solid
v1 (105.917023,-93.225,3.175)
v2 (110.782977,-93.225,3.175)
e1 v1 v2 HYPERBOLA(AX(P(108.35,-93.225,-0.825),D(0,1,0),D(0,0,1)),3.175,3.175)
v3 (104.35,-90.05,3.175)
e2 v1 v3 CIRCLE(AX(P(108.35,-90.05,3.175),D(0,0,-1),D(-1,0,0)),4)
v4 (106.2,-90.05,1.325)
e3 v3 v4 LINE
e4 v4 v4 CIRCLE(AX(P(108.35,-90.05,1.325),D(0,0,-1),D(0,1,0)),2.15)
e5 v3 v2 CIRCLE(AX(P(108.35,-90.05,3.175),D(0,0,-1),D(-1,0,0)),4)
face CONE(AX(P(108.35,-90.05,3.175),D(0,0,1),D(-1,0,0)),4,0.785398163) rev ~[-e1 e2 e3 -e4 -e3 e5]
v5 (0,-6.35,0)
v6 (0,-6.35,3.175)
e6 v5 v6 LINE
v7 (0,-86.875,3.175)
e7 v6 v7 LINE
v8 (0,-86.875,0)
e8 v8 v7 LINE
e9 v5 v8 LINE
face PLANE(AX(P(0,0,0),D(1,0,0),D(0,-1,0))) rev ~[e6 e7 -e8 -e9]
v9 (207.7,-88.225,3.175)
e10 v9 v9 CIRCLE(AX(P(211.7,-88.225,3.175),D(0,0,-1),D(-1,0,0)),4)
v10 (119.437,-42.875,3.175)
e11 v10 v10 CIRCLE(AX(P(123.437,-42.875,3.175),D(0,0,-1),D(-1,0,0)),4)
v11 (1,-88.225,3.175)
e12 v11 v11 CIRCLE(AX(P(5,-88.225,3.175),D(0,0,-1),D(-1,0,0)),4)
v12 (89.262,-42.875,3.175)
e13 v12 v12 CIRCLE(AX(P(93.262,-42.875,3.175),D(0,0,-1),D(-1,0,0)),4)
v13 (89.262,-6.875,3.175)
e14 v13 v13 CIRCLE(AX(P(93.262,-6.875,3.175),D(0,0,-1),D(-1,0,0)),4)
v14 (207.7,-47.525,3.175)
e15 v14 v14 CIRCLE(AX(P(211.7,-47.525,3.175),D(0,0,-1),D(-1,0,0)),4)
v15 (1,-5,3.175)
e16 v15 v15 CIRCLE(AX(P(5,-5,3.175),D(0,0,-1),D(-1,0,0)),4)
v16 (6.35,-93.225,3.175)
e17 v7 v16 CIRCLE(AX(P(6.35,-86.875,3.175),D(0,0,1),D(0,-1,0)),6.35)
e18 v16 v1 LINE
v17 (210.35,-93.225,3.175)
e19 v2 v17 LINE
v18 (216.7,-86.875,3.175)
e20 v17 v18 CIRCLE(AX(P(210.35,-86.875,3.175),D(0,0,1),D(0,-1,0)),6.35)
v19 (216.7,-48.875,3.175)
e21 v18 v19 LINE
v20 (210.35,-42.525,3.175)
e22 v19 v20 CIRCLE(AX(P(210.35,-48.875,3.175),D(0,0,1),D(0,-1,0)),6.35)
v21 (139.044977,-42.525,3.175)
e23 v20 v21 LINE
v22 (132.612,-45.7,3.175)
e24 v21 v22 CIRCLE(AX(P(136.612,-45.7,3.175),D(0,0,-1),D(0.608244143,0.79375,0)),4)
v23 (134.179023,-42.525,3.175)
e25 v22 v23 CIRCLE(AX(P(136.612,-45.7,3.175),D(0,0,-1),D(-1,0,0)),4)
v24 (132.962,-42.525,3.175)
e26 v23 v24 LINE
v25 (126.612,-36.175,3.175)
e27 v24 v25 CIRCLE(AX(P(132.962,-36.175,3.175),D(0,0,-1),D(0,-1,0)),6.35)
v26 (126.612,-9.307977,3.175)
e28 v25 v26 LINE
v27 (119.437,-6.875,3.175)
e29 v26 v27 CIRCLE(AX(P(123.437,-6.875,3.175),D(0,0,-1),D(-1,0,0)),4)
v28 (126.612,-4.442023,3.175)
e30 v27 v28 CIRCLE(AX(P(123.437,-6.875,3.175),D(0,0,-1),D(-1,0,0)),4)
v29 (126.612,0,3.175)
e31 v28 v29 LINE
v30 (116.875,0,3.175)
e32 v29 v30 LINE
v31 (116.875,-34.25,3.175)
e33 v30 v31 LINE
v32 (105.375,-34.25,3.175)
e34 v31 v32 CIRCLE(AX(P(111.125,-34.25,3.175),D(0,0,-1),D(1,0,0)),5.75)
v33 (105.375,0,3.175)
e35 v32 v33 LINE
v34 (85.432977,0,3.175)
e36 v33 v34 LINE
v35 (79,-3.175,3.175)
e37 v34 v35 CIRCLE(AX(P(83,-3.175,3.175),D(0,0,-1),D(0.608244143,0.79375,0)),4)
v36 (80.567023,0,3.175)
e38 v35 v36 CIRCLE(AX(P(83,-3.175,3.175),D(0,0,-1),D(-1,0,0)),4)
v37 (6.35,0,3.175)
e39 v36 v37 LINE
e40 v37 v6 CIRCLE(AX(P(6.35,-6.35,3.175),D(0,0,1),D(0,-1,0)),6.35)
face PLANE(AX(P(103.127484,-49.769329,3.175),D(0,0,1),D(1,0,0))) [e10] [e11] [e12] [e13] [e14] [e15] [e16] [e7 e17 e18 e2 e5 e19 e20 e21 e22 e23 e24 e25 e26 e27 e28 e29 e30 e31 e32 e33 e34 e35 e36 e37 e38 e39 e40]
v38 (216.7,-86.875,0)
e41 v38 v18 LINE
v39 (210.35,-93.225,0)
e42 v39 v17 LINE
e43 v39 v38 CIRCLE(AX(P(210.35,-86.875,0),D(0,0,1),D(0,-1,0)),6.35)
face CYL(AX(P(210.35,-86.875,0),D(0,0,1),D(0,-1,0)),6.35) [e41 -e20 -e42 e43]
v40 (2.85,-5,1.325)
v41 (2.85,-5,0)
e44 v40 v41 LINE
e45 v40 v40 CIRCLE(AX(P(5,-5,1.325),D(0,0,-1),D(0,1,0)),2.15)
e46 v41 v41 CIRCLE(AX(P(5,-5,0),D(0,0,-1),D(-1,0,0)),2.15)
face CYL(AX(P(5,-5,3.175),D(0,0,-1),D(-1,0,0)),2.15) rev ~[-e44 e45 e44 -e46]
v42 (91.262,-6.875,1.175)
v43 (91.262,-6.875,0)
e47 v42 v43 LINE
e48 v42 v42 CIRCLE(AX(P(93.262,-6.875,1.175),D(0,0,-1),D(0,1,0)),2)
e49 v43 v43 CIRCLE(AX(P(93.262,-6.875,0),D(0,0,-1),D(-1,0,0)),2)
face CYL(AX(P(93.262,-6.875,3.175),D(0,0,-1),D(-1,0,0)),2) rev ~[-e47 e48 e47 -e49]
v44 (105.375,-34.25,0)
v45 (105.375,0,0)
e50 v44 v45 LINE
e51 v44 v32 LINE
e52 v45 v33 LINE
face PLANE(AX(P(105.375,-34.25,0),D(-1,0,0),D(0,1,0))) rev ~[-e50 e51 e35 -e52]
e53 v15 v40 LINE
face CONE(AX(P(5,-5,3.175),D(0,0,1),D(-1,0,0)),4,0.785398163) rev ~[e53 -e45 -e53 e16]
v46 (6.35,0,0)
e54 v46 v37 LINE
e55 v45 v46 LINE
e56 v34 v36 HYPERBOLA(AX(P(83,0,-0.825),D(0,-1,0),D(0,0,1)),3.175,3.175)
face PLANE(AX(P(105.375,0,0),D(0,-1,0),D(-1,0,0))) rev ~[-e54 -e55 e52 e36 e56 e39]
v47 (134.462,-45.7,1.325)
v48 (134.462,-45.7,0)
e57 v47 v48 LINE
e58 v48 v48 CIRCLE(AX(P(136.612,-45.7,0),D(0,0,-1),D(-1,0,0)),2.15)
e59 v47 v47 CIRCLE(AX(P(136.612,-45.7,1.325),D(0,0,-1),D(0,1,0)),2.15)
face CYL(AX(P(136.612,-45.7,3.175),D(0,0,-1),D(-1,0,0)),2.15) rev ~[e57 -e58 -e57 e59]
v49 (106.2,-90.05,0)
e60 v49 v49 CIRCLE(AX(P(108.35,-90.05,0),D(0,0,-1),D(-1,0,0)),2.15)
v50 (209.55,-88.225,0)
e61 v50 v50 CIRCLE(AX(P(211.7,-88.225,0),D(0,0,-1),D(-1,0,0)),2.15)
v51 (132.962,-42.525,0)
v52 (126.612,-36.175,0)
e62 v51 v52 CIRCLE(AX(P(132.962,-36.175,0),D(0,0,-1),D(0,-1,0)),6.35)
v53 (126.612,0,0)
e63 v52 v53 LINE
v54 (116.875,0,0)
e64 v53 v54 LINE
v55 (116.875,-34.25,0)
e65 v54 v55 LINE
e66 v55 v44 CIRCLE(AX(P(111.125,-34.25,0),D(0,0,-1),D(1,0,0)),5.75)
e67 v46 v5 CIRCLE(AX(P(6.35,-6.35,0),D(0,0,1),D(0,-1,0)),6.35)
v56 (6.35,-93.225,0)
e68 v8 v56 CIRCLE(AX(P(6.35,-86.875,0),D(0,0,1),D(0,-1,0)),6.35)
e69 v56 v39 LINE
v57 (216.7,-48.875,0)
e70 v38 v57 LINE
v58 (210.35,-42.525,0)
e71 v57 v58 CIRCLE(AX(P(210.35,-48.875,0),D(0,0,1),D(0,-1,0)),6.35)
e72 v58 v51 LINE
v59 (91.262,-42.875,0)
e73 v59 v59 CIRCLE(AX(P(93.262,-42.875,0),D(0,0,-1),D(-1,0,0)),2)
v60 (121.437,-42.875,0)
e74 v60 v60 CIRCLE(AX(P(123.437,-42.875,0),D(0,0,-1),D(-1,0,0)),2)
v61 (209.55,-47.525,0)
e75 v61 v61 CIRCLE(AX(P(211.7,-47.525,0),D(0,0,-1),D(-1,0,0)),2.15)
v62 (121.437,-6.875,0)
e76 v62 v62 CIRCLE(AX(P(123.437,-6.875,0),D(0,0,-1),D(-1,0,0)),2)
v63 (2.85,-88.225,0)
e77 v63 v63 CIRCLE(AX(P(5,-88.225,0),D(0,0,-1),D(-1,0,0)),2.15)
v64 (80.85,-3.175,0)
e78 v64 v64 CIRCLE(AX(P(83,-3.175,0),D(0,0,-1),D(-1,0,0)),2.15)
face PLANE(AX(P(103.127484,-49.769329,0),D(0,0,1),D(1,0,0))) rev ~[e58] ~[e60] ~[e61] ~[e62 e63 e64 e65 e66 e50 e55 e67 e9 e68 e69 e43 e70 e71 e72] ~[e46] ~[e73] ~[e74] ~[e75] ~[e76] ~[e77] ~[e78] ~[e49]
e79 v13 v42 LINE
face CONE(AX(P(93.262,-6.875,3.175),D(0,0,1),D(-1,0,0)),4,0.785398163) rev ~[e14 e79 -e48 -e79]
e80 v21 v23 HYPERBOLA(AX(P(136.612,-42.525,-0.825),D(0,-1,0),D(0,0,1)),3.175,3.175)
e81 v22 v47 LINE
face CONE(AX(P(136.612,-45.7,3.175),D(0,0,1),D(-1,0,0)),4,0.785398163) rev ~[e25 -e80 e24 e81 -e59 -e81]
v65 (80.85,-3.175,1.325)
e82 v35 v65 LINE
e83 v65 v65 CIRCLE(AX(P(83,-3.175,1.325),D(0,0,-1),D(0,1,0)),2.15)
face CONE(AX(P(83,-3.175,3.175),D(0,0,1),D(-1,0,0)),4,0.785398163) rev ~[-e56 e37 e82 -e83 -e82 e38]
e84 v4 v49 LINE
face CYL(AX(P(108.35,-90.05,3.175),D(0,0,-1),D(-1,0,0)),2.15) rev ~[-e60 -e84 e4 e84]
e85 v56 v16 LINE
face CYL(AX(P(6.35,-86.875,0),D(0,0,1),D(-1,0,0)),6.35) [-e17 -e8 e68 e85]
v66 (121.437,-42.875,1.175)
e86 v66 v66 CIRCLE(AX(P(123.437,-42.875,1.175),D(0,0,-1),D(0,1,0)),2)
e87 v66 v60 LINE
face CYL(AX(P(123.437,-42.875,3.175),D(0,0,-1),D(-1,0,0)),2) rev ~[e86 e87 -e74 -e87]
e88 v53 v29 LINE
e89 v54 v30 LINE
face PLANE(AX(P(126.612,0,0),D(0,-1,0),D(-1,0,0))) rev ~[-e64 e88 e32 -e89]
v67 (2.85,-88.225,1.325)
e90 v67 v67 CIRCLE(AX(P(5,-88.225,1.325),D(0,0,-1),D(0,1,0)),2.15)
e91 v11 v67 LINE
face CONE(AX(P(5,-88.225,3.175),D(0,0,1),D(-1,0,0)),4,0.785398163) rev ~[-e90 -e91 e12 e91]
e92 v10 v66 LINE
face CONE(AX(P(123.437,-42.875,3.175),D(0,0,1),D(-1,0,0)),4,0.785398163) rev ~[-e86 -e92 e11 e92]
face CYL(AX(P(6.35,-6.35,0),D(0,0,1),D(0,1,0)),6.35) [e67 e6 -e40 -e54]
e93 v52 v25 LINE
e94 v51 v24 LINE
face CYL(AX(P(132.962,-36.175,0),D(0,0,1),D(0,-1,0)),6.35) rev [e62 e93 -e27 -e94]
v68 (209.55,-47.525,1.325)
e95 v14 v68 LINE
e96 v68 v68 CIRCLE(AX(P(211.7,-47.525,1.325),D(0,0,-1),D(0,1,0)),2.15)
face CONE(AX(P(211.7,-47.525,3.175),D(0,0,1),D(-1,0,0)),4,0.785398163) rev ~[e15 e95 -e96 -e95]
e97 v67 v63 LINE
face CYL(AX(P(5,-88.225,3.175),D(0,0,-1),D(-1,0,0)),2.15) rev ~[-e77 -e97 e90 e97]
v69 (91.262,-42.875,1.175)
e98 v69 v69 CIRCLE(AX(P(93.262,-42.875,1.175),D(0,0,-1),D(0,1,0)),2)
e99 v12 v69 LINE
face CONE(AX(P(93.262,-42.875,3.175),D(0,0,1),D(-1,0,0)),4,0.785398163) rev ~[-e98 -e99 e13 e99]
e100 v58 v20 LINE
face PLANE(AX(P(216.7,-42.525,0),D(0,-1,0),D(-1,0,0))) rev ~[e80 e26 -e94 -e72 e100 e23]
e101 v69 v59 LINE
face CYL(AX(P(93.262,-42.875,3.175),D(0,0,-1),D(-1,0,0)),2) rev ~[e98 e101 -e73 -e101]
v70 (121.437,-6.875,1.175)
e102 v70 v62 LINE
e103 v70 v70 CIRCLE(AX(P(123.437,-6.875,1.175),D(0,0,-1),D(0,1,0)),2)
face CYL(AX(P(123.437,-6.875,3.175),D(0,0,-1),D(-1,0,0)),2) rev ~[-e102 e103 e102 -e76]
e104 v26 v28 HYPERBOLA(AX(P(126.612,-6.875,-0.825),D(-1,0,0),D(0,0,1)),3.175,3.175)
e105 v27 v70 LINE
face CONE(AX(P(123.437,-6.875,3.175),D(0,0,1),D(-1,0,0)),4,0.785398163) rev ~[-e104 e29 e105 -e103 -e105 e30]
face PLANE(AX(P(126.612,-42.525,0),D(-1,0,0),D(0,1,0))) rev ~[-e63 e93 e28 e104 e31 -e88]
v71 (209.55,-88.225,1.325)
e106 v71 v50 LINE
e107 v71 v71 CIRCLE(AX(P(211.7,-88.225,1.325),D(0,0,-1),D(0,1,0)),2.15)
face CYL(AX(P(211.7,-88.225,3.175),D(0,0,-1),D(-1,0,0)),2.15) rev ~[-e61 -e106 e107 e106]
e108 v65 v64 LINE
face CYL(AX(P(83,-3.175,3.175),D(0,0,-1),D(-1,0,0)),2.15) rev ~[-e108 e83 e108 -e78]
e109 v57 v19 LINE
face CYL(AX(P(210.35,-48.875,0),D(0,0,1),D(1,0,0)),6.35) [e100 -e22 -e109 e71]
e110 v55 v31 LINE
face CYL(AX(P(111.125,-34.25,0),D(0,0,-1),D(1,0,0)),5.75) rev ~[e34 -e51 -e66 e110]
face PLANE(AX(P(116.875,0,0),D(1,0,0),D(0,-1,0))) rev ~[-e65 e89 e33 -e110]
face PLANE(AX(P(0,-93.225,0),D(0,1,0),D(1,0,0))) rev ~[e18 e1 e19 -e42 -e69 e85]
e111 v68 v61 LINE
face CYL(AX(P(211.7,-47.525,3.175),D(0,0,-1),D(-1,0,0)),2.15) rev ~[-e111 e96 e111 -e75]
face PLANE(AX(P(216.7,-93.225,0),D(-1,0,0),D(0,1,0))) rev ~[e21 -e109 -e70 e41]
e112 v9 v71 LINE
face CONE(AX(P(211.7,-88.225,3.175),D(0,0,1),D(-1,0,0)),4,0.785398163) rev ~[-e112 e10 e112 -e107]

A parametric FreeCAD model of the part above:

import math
import FreeCAD as App
import Part
import Sketcher

V = App.Vector


def edges_at(feature, points):
    """Names of the edges that pass closest to the given points."""
    edges = feature.Shape.Edges
    near = lambda p: min(range(len(edges)), key=lambda i: edges[i].distToShape(Part.Vertex(*p))[0])
    return sorted({f"Edge{near(p) + 1}" for p in points})

doc = App.newDocument("Part")
body = doc.addObject("PartDesign::Body", "Body")

sketch1 = body.newObject("Sketcher::SketchObject", "Sketch")
sketch1.AttachmentSupport = (doc.getObject("XY_Plane"), [""])
sketch1.MapMode = "FlatFace"
sketch1.addGeometry([
    Part.LineSegment(V(105.375, 0, 0), V(0, 0, 0)),
    Part.LineSegment(V(0, 0, 0), V(0, -93.225, 0)),
    Part.LineSegment(V(0, -93.225, 0), V(216.7, -93.225, 0)),
    Part.LineSegment(V(216.7, -93.225, 0), V(216.7, -42.525, 0)),
    Part.LineSegment(V(216.7, -42.525, 0), V(126.612, -42.525, 0)),
    Part.LineSegment(V(126.612, -42.525, 0), V(126.612, 0, 0)),
    Part.LineSegment(V(126.612, 0, 0), V(116.875, 0, 0)),
    Part.LineSegment(V(116.875, 0, 0), V(116.875, -34.25, 0)),
    Part.ArcOfCircle(Part.Circle(V(111.125, -34.25, 0), V(0, 0, 1), 5.75), math.radians(180), math.radians(360)),
    Part.LineSegment(V(105.375, -34.25, 0), V(105.375, 0, 0)),
], False)
sketch1.addConstraint([
    Sketcher.Constraint("Coincident", 0, 2, 1, 1),
    Sketcher.Constraint("Coincident", 1, 2, 2, 1),
    Sketcher.Constraint("Coincident", 2, 2, 3, 1),
    Sketcher.Constraint("Coincident", 3, 2, 4, 1),
    Sketcher.Constraint("Coincident", 4, 2, 5, 1),
    Sketcher.Constraint("Coincident", 5, 2, 6, 1),
    Sketcher.Constraint("Coincident", 6, 2, 7, 1),
    Sketcher.Constraint("Tangent", 7, 2, 8, 2),
    Sketcher.Constraint("Tangent", 8, 1, 9, 1),
    Sketcher.Constraint("Coincident", 9, 2, 0, 1),
    Sketcher.Constraint("Horizontal", 0),
    Sketcher.Constraint("Vertical", 1),
    Sketcher.Constraint("Horizontal", 2),
    Sketcher.Constraint("Vertical", 3),
    Sketcher.Constraint("Horizontal", 4),
    Sketcher.Constraint("Vertical", 5),
    Sketcher.Constraint("Horizontal", 6),
    Sketcher.Constraint("Vertical", 7),
    Sketcher.Constraint("Vertical", 9),
    Sketcher.Constraint("Coincident", 0, 2, -1, 1),
    Sketcher.Constraint("PointOnObject", 5, 2, -1),
    Sketcher.Constraint("Radius", 8, 5.75),
    Sketcher.Constraint("DistanceX", 2, 1, 2, 2, 216.7),
    Sketcher.Constraint("DistanceY", 3, 1, 3, 2, 50.7),
    Sketcher.Constraint("DistanceY", 7, 2, 7, 1, 34.25),
    Sketcher.Constraint("DistanceX", 0, 2, 0, 1, 105.375),
    Sketcher.Constraint("DistanceX", 4, 2, 4, 1, 90.088),
    Sketcher.Constraint("DistanceY", 1, 2, 1, 1, 93.225),
])
pad1 = body.newObject("PartDesign::Pad", "Pad")
pad1.Profile = sketch1
pad1.Length = 3.175
doc.recompute()

fillet = body.newObject("PartDesign::Fillet", "Fillet")
fillet.Base = (pad1, edges_at(pad1, [
    (0, 0, 1.587),
    (0, -93.225, 1.587),
    (126.612, -42.525, 1.587),
    (216.7, -42.525, 1.587),
    (216.7, -93.225, 1.587),
]))
fillet.Radius = 6.35

sketch2 = body.newObject("Sketcher::SketchObject", "Sketch001")
sketch2.AttachmentSupport = (doc.getObject("XY_Plane"), [""])
sketch2.MapMode = "FlatFace"
sketch2.AttachmentOffset = App.Placement(V(0, 0, 3.175), App.Rotation())
sketch2.addGeometry([
    Part.Circle(V(5, -5, 0), V(0, 0, 1), 2.15),
    Part.Circle(V(5, -88.225, 0), V(0, 0, 1), 2.15),
    Part.Circle(V(211.7, -88.225, 0), V(0, 0, 1), 2.15),
    Part.Circle(V(211.7, -47.525, 0), V(0, 0, 1), 2.15),
    Part.Circle(V(136.612, -45.7, 0), V(0, 0, 1), 2.15),
    Part.Circle(V(83, -3.175, 0), V(0, 0, 1), 2.15),
    Part.Circle(V(108.35, -90.05, 0), V(0, 0, 1), 2.15),
], False)
sketch2.addConstraint([
    Sketcher.Constraint("Equal", 0, 1),
    Sketcher.Constraint("Equal", 1, 2),
    Sketcher.Constraint("Equal", 2, 3),
    Sketcher.Constraint("Equal", 3, 4),
    Sketcher.Constraint("Equal", 4, 5),
    Sketcher.Constraint("Equal", 5, 6),
    Sketcher.Constraint("Horizontal", 1, 3, 2, 3),
    Sketcher.Constraint("Vertical", 0, 3, 1, 3),
    Sketcher.Constraint("Vertical", 2, 3, 3, 3),
    Sketcher.Constraint("Diameter", 0, 4.3),
    Sketcher.Constraint("DistanceX", -1, 1, 0, 3, 5.0),
    Sketcher.Constraint("DistanceY", 0, 3, -1, 1, 5.0),
    Sketcher.Constraint("DistanceX", -1, 1, 5, 3, 83.0),
    Sketcher.Constraint("DistanceX", -1, 1, 2, 3, 211.7),
    Sketcher.Constraint("DistanceY", 4, 3, -1, 1, 45.7),
    Sketcher.Constraint("DistanceY", 2, 3, 3, 3, 40.7),
    Sketcher.Constraint("DistanceX", -1, 1, 6, 3, 108.35),
    Sketcher.Constraint("DistanceY", 6, 3, -1, 1, 90.05),
    Sketcher.Constraint("DistanceY", 1, 3, 5, 3, 85.05),
    Sketcher.Constraint("DistanceY", 1, 3, -1, 1, 88.225),
    Sketcher.Constraint("DistanceX", -1, 1, 4, 3, 136.612),
])
doc.recompute()
hole = body.newObject("PartDesign::Hole", "Hole")
hole.Profile = sketch2
hole.ThreadType = "None"
hole.Diameter = 4.3
hole.DepthType = "ThroughAll"
hole.HoleCutType = "Countersink"
hole.HoleCutDiameter = 8
hole.HoleCutCountersinkAngle = 90

sketch3 = body.newObject("Sketcher::SketchObject", "Sketch002")
sketch3.AttachmentSupport = (doc.getObject("XY_Plane"), [""])
sketch3.MapMode = "FlatFace"
sketch3.AttachmentOffset = App.Placement(V(0, 0, 3.175), App.Rotation())
sketch3.addGeometry([
    Part.Circle(V(123.437, -42.875, 0), V(0, 0, 1), 2),
    Part.Circle(V(123.437, -6.875, 0), V(0, 0, 1), 2),
    Part.Circle(V(93.262, -6.875, 0), V(0, 0, 1), 2),
    Part.Circle(V(93.262, -42.875, 0), V(0, 0, 1), 2),
], False)
sketch3.addConstraint([
    Sketcher.Constraint("Equal", 0, 1),
    Sketcher.Constraint("Equal", 1, 2),
    Sketcher.Constraint("Equal", 2, 3),
    Sketcher.Constraint("Horizontal", 1, 3, 2, 3),
    Sketcher.Constraint("Horizontal", 0, 3, 3, 3),
    Sketcher.Constraint("Vertical", 0, 3, 1, 3),
    Sketcher.Constraint("Vertical", 2, 3, 3, 3),
    Sketcher.Constraint("Diameter", 0, 4.0),
    Sketcher.Constraint("DistanceY", 0, 3, 1, 3, 36.0),
    Sketcher.Constraint("DistanceX", -1, 1, 0, 3, 123.437),
    Sketcher.Constraint("DistanceY", 0, 3, -1, 1, 42.875),
    Sketcher.Constraint("DistanceX", -1, 1, 2, 3, 93.262),
])
doc.recompute()
hole2 = body.newObject("PartDesign::Hole", "Hole001")
hole2.Profile = sketch3
hole2.ThreadType = "None"
hole2.Diameter = 4
hole2.DepthType = "ThroughAll"
hole2.HoleCutType = "Countersink"
hole2.HoleCutDiameter = 8
hole2.HoleCutCountersinkAngle = 90

doc.recompute()
